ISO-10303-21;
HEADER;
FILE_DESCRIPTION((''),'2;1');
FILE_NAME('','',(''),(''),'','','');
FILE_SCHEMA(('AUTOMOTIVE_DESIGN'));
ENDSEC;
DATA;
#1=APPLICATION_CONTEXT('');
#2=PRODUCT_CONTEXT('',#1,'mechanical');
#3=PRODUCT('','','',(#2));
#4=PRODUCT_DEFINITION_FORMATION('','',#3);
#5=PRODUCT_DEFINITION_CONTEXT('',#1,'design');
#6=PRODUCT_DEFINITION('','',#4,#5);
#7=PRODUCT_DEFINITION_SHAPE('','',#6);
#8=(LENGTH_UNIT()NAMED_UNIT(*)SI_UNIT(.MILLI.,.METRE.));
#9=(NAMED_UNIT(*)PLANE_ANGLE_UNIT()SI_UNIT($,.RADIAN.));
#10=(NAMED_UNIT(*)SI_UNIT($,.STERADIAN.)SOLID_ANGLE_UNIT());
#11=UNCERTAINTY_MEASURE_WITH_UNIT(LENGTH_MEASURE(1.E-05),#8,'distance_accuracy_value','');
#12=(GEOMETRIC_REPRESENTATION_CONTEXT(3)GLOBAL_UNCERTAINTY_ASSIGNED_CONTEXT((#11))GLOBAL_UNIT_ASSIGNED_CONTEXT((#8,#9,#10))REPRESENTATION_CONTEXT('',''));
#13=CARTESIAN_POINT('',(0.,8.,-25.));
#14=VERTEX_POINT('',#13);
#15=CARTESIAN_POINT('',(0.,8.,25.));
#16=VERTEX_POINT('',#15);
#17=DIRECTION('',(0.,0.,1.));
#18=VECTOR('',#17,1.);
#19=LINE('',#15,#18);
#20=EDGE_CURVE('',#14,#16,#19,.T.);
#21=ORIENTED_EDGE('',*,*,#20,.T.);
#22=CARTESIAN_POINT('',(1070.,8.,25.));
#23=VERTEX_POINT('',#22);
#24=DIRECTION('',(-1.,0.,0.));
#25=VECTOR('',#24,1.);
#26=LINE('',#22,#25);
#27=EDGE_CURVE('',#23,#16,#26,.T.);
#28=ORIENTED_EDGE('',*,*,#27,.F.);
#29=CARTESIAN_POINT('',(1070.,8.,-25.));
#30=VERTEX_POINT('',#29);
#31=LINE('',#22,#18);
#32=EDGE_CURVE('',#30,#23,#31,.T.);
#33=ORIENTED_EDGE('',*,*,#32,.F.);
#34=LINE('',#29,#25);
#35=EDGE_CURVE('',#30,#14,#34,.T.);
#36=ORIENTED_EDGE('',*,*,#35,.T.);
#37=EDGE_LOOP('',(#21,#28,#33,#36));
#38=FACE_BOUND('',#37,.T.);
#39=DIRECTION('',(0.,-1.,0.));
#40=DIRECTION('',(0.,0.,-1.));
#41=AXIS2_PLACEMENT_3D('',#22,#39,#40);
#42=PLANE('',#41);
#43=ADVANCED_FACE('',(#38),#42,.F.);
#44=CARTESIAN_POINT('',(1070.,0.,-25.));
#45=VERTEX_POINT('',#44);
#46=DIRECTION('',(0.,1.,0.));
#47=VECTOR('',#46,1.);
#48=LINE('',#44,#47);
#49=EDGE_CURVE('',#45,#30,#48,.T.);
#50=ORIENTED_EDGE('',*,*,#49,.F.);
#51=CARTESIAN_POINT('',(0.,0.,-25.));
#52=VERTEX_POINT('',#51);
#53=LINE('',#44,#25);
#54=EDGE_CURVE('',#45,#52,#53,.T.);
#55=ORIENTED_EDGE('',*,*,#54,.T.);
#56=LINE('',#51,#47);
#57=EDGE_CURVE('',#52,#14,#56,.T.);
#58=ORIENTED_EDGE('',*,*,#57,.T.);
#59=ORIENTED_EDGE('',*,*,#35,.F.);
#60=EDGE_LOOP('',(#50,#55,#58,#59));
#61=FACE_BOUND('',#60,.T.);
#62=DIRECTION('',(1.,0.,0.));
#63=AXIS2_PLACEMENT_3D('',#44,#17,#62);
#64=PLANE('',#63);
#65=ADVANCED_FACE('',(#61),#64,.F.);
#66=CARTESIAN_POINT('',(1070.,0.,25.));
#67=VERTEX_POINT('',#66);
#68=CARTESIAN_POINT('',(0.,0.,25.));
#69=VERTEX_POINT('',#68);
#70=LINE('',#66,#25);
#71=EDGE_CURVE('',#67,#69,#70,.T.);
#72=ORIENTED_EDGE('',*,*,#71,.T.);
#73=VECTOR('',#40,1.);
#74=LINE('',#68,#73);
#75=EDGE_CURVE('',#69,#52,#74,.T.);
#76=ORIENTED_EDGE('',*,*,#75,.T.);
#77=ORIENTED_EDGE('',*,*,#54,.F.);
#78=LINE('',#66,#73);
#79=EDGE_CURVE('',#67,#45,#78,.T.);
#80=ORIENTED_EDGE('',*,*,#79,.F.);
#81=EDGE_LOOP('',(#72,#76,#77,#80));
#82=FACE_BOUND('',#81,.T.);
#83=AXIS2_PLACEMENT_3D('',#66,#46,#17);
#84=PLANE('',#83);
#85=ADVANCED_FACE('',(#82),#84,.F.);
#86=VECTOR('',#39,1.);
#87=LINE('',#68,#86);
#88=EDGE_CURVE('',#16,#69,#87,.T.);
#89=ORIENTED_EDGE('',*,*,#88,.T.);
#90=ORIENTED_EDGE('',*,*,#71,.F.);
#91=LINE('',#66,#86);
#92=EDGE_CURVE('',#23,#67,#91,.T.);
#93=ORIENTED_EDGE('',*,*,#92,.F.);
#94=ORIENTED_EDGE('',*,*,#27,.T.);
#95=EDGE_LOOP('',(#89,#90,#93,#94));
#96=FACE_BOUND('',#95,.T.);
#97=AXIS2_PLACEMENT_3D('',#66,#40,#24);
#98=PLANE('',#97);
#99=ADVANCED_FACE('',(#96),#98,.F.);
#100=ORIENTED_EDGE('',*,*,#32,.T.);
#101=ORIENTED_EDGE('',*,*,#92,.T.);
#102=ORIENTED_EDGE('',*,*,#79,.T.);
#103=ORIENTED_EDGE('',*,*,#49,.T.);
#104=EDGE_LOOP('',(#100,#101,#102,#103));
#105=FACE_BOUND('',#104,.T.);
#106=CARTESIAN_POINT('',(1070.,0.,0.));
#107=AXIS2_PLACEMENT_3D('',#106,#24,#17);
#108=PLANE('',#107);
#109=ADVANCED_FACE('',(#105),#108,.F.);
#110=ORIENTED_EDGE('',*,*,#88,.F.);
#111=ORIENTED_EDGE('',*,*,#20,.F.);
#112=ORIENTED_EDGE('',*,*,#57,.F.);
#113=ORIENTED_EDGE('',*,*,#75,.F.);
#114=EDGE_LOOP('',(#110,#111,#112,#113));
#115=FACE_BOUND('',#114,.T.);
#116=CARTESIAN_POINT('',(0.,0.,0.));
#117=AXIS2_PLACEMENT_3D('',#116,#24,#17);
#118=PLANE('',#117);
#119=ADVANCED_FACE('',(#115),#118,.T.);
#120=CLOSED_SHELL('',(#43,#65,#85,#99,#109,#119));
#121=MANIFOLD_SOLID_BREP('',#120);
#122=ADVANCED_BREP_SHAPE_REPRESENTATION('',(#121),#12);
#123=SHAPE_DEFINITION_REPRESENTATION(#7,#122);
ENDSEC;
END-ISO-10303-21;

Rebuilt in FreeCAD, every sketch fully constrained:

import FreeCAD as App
import Part
import Sketcher
from FreeCAD import Vector


def add_polygon(sketch, points):
    """Adds a closed chain of lines whose ends are joined by coincident constraints."""
    first, n = sketch.GeometryCount, len(points)
    for a, b in zip(points, points[1:] + points[:1]):
        sketch.addGeometry(Part.LineSegment(App.Vector(*a, 0), App.Vector(*b, 0)), False)
    for i in range(n):
        sketch.addConstraint(Sketcher.Constraint("Coincident", first + i, 2, first + (i + 1) % n, 1))

doc = App.newDocument("Part")
body = doc.addObject("PartDesign::Body", "Body")

# Sketch on YZ plane
sketch1 = body.newObject("Sketcher::SketchObject", "Sketch")
sketch1.AttachmentSupport = (doc.getObject("YZ_Plane"), [""])
sketch1.MapMode = "FlatFace"
add_polygon(sketch1, [(8, 25), (0, 25), (0, -25), (8, -25)])  # lines 0-3
sketch1.addConstraint(Sketcher.Constraint("Horizontal", 0))
sketch1.addConstraint(Sketcher.Constraint("Vertical", 1))
sketch1.addConstraint(Sketcher.Constraint("Horizontal", 2))
sketch1.addConstraint(Sketcher.Constraint("Vertical", 3))
sketch1.addConstraint(Sketcher.Constraint("Symmetric", 0, 2, 1, 2, -1, 1))
sketch1.addConstraint(Sketcher.Constraint("DistanceX", 0, 2, 0, 1, 8.0))
sketch1.addConstraint(Sketcher.Constraint("DistanceY", 1, 2, 1, 1, 50.0))
pad1 = body.newObject("PartDesign::Pad", "Pad")
pad1.Profile = sketch1
pad1.Length = 1070

doc.recompute()
